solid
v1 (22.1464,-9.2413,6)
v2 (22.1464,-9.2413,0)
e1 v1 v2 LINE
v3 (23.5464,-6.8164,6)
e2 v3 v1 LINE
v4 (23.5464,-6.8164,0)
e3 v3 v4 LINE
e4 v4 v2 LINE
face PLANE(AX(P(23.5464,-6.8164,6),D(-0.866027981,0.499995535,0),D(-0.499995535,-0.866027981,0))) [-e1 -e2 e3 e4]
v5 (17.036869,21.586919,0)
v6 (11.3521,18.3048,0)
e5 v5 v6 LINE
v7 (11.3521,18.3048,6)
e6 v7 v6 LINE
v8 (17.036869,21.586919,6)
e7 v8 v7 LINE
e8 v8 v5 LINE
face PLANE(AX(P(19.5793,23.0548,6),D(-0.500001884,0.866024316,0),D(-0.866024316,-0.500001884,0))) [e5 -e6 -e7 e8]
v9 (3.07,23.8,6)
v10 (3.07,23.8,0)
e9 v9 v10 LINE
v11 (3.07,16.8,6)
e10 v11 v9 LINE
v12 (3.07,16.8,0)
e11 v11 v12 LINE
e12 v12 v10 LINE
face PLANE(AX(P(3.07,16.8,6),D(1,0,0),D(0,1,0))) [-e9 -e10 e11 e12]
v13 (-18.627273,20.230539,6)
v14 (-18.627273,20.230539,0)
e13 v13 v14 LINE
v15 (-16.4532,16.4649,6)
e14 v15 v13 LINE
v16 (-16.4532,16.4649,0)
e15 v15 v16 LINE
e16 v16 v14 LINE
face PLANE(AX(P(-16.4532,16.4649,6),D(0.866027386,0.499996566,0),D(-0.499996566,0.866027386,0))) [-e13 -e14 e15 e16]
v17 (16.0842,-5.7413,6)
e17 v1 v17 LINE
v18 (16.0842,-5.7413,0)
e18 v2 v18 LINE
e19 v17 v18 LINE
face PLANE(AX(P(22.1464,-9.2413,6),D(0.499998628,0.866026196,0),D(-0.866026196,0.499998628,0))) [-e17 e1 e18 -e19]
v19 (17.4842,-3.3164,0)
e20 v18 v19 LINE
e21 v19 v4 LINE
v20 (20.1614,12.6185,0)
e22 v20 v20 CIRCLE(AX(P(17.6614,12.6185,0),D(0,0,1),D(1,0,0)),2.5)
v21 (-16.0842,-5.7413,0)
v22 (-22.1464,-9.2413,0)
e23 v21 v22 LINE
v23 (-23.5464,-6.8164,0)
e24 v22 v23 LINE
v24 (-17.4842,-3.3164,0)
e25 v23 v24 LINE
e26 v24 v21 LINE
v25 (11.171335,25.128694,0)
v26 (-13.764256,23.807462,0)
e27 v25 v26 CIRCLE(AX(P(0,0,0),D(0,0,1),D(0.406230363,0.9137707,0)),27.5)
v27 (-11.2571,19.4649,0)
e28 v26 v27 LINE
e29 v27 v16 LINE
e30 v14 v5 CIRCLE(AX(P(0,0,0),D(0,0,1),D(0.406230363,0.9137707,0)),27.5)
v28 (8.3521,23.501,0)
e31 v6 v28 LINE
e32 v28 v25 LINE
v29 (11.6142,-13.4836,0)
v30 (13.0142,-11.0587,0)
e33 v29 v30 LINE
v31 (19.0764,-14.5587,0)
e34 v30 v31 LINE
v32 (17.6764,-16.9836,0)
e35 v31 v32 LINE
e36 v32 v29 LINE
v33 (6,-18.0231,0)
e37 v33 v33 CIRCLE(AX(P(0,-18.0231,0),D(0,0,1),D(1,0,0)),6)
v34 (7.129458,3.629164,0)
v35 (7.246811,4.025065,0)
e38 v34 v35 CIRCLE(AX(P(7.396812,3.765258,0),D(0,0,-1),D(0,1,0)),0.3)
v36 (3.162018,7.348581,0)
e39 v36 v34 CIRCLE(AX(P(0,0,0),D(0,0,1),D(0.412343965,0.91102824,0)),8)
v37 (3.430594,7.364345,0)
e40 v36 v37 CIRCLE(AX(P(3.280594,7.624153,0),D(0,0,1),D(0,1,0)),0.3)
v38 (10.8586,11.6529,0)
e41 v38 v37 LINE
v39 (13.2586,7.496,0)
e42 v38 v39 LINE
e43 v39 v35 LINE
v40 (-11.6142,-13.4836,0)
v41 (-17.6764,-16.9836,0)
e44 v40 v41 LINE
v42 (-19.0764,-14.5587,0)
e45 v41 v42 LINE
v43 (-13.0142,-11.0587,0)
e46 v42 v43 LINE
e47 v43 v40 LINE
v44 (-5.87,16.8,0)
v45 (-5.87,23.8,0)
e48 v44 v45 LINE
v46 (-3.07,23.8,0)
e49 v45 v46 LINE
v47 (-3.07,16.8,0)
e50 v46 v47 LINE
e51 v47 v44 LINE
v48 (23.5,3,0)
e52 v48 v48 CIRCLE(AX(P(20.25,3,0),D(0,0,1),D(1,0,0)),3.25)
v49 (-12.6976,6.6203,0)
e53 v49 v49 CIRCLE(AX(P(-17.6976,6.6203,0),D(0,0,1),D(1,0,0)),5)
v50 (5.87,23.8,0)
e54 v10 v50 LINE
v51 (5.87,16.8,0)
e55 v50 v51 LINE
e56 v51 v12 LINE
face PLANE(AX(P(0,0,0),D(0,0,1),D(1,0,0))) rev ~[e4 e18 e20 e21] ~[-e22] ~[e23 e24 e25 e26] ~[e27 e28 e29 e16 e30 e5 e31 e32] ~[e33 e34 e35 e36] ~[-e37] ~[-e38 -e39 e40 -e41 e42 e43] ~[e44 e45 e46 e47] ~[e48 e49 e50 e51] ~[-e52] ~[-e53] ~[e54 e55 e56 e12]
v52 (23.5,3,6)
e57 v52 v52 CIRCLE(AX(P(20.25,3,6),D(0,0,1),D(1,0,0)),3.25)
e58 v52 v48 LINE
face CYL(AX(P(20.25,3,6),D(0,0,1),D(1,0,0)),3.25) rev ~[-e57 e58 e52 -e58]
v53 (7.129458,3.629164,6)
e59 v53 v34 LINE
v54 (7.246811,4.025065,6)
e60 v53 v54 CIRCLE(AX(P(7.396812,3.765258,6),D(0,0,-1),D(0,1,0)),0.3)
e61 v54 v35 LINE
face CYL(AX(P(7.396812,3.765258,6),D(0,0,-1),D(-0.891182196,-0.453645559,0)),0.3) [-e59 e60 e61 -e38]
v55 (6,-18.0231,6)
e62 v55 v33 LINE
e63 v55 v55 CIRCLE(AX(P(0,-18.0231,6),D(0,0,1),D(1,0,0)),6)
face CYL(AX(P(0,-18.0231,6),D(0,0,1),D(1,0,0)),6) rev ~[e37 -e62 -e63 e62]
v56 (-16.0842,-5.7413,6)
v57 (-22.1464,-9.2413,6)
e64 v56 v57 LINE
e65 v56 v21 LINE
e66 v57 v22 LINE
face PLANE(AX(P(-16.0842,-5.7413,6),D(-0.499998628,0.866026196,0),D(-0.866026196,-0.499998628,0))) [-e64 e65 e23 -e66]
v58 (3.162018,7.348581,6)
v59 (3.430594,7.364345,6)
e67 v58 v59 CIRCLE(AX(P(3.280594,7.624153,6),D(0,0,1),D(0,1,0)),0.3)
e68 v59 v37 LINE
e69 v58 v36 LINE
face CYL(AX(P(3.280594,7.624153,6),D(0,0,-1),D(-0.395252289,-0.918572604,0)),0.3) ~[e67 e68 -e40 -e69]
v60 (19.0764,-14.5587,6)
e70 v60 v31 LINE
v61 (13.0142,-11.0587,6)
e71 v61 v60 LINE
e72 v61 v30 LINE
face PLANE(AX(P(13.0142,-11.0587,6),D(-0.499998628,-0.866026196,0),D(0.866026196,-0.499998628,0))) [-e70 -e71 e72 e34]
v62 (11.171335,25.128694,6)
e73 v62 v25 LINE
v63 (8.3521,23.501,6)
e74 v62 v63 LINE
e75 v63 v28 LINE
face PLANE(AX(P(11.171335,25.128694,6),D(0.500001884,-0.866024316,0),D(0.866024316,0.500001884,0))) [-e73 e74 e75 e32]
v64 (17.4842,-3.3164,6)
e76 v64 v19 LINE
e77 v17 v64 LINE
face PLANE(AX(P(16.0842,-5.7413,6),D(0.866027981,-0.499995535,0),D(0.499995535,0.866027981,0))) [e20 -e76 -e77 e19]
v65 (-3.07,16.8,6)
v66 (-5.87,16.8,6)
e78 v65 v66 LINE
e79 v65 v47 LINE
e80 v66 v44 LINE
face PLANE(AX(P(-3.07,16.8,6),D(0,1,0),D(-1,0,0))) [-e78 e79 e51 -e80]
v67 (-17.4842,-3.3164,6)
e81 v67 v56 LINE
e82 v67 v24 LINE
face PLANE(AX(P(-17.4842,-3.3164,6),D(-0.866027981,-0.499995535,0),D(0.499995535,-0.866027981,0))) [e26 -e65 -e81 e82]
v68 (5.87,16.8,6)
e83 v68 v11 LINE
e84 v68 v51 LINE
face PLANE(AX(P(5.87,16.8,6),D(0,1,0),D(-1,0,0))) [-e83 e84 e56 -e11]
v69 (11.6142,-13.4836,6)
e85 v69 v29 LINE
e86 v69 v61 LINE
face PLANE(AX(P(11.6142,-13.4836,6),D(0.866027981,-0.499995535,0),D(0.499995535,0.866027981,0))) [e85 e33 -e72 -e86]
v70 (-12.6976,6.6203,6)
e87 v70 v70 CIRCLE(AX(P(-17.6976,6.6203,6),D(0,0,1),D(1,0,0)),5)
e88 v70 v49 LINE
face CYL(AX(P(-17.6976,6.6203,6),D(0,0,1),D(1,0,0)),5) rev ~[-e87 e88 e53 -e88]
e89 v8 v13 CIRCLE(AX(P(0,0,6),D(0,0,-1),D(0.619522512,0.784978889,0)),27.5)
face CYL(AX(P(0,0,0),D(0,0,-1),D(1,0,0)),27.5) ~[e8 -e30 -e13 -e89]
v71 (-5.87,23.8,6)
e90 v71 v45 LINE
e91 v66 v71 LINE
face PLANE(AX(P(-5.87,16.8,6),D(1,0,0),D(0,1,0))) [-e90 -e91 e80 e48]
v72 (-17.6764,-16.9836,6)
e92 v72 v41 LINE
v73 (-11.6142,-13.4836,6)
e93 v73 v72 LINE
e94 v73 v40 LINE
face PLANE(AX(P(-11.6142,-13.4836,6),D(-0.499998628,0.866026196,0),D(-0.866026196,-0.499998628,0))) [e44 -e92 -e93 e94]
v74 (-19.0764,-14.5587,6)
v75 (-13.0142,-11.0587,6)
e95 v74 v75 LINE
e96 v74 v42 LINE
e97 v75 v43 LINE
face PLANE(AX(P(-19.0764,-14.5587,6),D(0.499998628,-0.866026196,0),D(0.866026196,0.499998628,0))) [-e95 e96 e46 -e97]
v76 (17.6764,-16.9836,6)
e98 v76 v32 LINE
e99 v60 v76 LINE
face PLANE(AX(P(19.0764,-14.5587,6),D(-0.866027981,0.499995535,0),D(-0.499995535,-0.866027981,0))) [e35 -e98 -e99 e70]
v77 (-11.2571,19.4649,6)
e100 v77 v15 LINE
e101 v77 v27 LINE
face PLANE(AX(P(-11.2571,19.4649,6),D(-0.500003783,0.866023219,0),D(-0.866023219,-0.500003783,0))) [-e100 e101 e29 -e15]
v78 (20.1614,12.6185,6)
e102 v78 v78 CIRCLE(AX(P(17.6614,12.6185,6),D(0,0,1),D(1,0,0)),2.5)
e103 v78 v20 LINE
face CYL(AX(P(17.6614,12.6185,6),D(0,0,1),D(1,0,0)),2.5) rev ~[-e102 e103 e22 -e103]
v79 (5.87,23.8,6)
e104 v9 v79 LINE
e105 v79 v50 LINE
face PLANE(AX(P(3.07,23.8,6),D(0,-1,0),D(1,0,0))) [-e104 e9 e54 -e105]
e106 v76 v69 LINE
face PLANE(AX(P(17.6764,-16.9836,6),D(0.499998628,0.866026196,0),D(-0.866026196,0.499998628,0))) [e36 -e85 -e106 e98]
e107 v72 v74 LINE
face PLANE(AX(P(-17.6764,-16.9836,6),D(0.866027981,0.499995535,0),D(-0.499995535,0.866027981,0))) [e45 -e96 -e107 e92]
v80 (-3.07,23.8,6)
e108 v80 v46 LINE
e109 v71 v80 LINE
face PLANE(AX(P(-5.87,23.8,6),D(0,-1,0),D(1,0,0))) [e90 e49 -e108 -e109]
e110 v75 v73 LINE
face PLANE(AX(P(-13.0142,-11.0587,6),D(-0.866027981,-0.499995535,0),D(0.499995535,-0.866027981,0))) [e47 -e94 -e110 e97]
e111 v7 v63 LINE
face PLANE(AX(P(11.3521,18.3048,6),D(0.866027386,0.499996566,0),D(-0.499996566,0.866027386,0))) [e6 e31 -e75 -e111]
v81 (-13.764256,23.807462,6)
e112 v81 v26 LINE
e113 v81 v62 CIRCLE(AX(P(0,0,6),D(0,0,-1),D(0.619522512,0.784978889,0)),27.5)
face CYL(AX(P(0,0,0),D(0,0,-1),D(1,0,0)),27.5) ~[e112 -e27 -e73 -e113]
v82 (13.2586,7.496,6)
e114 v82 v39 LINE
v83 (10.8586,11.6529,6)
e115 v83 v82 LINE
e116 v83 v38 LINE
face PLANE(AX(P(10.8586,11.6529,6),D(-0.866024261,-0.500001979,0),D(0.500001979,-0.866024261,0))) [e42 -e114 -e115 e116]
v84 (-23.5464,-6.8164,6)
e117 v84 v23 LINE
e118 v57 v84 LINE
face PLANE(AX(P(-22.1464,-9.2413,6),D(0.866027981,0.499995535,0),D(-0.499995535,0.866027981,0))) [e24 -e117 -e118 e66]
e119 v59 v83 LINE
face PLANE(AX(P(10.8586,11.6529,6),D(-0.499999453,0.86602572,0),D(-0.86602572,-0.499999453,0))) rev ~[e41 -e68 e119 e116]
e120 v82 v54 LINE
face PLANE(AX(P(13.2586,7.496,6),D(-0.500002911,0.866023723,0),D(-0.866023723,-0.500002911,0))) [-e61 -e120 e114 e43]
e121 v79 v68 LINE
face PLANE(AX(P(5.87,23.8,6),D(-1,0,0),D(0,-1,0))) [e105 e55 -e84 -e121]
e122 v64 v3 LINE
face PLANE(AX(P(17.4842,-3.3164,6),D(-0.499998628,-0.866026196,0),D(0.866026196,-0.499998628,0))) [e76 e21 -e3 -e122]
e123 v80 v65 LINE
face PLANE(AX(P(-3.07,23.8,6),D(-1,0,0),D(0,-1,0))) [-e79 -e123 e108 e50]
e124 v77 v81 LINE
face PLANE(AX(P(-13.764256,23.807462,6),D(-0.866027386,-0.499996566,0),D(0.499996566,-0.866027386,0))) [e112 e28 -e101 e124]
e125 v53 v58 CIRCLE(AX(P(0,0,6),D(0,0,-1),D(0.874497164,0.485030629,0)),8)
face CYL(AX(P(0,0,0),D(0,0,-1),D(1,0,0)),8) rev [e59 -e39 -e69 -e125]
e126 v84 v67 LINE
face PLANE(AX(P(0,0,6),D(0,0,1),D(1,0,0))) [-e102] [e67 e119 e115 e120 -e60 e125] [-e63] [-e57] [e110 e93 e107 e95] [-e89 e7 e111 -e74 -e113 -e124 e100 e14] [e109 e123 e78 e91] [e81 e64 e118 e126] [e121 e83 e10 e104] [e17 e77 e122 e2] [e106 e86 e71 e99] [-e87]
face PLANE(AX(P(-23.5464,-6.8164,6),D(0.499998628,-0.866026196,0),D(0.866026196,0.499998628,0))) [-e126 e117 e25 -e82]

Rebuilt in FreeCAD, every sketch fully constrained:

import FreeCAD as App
import Part
import Sketcher
Q = App.Units.Quantity


def edges_at(feature, points):
    """Names of the edges that pass closest to the given points."""
    edges = feature.Shape.Edges
    near = lambda p: min(range(len(edges)), key=lambda i: edges[i].distToShape(Part.Vertex(*p))[0])
    return sorted({f"Edge{near(p) + 1}" for p in points})


def add_polygon(sketch, points):
    """Adds a closed chain of lines whose ends are joined by coincident constraints."""
    first, n = sketch.GeometryCount, len(points)
    for a, b in zip(points, points[1:] + points[:1]):
        sketch.addGeometry(Part.LineSegment(App.Vector(*a, 0), App.Vector(*b, 0)), False)
    for i in range(n):
        sketch.addConstraint(Sketcher.Constraint("Coincident", first + i, 2, first + (i + 1) % n, 1))

doc = App.newDocument("Part")
body = doc.addObject("PartDesign::Body", "Body")

# Sketch on XY plane
sketch1 = body.newObject("Sketcher::SketchObject", "Sketch")
sketch1.AttachmentSupport = (doc.getObject("XY_Plane"), [""])
sketch1.MapMode = "FlatFace"
sketch1.addGeometry([
    Part.Circle(App.Vector(0, 0, 0), App.Vector(0, 0, 1), 28),
    Part.Circle(App.Vector(0, 0, 0), App.Vector(0, 0, 1), 8),
], False)
sketch1.addConstraint([
    Sketcher.Constraint("Coincident", 0, 3, -1, 1),
    Sketcher.Constraint("Coincident", 1, 3, -1, 1),
    Sketcher.Constraint("Diameter", 0, 55.0),
    Sketcher.Constraint("Diameter", 1, 16.0),
])
pad1 = body.newObject("PartDesign::Pad", "Pad")
pad1.Profile = sketch1
pad1.Length = 6

# Sketch on XY plane
sketch2 = body.newObject("Sketcher::SketchObject", "Sketch001")
sketch2.AttachmentSupport = (doc.getObject("XY_Plane"), [""])
sketch2.MapMode = "FlatFace"
sketch2.AttachmentOffset = App.Placement(App.Vector(0, 0, 6), App.Rotation())
add_polygon(sketch2, [(-3.1, 23.8), (-5.9, 23.8), (-5.9, 16.8), (-3.1, 16.8)])  # lines 0-3
add_polygon(sketch2, [(5.9, 23.8), (3.1, 23.8), (3.1, 16.8), (5.9, 16.8)])  # lines 4-7
add_polygon(sketch2, [(-19.1, -14.6), (-17.7, -17), (-11.6, -13.5), (-13, -11.1)])  # lines 8-11
add_polygon(sketch2, [(-23.5, -6.8), (-22.1, -9.2), (-16.1, -5.7), (-17.5, -3.3)])  # lines 12-15
add_polygon(sketch2, [(22.1, -9.2), (23.5, -6.8), (17.5, -3.3), (16.1, -5.7)])  # lines 16-19
add_polygon(sketch2, [(17.7, -17), (19.1, -14.6), (13, -11.1), (11.6, -13.5)])  # lines 20-23
sketch2.addConstraint([
    Sketcher.Constraint("Horizontal", 0),
    Sketcher.Constraint("Vertical", 1),
    Sketcher.Constraint("Horizontal", 2),
    Sketcher.Constraint("Vertical", 3),
    Sketcher.Constraint("Horizontal", 4),
    Sketcher.Constraint("Vertical", 5),
    Sketcher.Constraint("Horizontal", 6),
    Sketcher.Constraint("Vertical", 7),
    Sketcher.Constraint("Symmetric", 3, 2, 4, 2, -2),
    Sketcher.Constraint("Symmetric", 1, 2, 6, 2, -2),
    Sketcher.Constraint("Symmetric", 15, 2, 16, 2, -2),
    Sketcher.Constraint("Symmetric", 14, 2, 17, 2, -2),
    Sketcher.Constraint("Symmetric", 13, 2, 18, 2, -2),
    Sketcher.Constraint("Symmetric", 12, 2, 19, 2, -2),
    Sketcher.Constraint("Symmetric", 11, 2, 20, 2, -2),
    Sketcher.Constraint("Symmetric", 10, 2, 21, 2, -2),
    Sketcher.Constraint("Symmetric", 9, 2, 22, 2, -2),
    Sketcher.Constraint("Symmetric", 8, 2, 23, 2, -2),
    Sketcher.Constraint("Perpendicular", 8, 9),
    Sketcher.Constraint("Perpendicular", 9, 10),
    Sketcher.Constraint("Perpendicular", 10, 11),
    Sketcher.Constraint("Perpendicular", 11, 12),
    Sketcher.Constraint("Perpendicular", 12, 13),
    Sketcher.Constraint("Perpendicular", 13, 14),
    Sketcher.Constraint("Perpendicular", 14, 15),
    Sketcher.Constraint("Equal", 10, 12),
    Sketcher.Constraint("Equal", 11, 13),
    Sketcher.Constraint("DistanceY", 1, 2, 1, 1, 7.0),
    Sketcher.Constraint("Distance", 9, 7.0),
    Sketcher.Constraint("DistanceX", 0, 2, 0, 1, 2.8),
    Sketcher.Constraint("Distance", 8, 2.8),
    Sketcher.Constraint("DistanceX", 2, 2, -1, 1, 3.07),
    Sketcher.Constraint("Angle", 8, Q("-60.0003 deg")),
    Sketcher.Constraint("DistanceX", 12, 2, 11, 2, 3.07),
    Sketcher.Constraint("DistanceY", -1, 1, 0, 2, 23.8),
    Sketcher.Constraint("DistanceX", 8, 2, -1, 1, 17.6764),
    Sketcher.Constraint("DistanceY", 8, 2, -1, 1, 16.9836),
    Sketcher.Constraint("DistanceY", 12, 2, -1, 1, 9.2413),
])
pocket1 = body.newObject("PartDesign::Pocket", "Pocket")
pocket1.Profile = sketch2
pocket1.Length = 6

# Sketch on XY plane
sketch3 = body.newObject("Sketcher::SketchObject", "Sketch002")
sketch3.AttachmentSupport = (doc.getObject("XY_Plane"), [""])
sketch3.MapMode = "FlatFace"
sketch3.AttachmentOffset = App.Placement(App.Vector(0, 0, 6), App.Rotation())
add_polygon(sketch3, [(20, 23), (17, 28), (8, 24), (11, 18)])  # lines 0-3
sketch3.addConstraint([
    Sketcher.Constraint("Perpendicular", 0, 1),
    Sketcher.Constraint("Perpendicular", 1, 2),
    Sketcher.Constraint("Perpendicular", 2, 3),
    Sketcher.Constraint("Distance", 0, 6.0),
    Sketcher.Constraint("Distance", 1, 9.5),
    Sketcher.Constraint("Angle", 0, Q("119.9998 deg")),
    Sketcher.Constraint("DistanceY", -1, 1, 0, 2, 28.251),
    Sketcher.Constraint("DistanceX", -1, 1, 1, 2, 8.352),
])
pocket2 = body.newObject("PartDesign::Pocket", "Pocket001")
pocket2.Profile = sketch3
pocket2.Length = 10

# Sketch on XY plane
sketch4 = body.newObject("Sketcher::SketchObject", "Sketch003")
sketch4.AttachmentSupport = (doc.getObject("XY_Plane"), [""])
sketch4.MapMode = "FlatFace"
sketch4.AttachmentOffset = App.Placement(App.Vector(0, 0, 6), App.Rotation())
add_polygon(sketch4, [(-16.5, 16.5), (-11.3, 19.5), (-14.3, 24.7), (-19.5, 21.7)])  # lines 0-3
add_polygon(sketch4, [(13.3, 7.5), (10.9, 11.7), (-2.1, 4.2), (0.9, 0.4)])  # lines 4-7
sketch4.addConstraint([
    Sketcher.Constraint("Perpendicular", 0, 1),
    Sketcher.Constraint("Perpendicular", 1, 2),
    Sketcher.Constraint("Perpendicular", 2, 3),
    Sketcher.Constraint("Parallel", 3, 4),
    Sketcher.Constraint("Perpendicular", 4, 5),
    Sketcher.Constraint("Parallel", 5, 7),
    Sketcher.Constraint("Equal", 0, 1),
    Sketcher.Constraint("Distance", 0, 6.0),
    Sketcher.Constraint("Distance", 5, 15.0),
    Sketcher.Constraint("Distance", 4, 4.8),
    Sketcher.Constraint("Angle", 0, Q("30.0003 deg")),
    Sketcher.Constraint("Distance", 7, 14.2183),
    Sketcher.Constraint("DistanceX", 0, 2, -1, 1, 11.257),
    Sketcher.Constraint("DistanceY", -1, 1, 0, 2, 19.465),
    Sketcher.Constraint("DistanceY", -1, 1, 4, 2, 11.653),
    Sketcher.Constraint("DistanceX", -1, 1, 4, 2, 10.8586),
])
pocket3 = body.newObject("PartDesign::Pocket", "Pocket002")
pocket3.Profile = sketch4
pocket3.Length = 10
doc.recompute()

fillet = body.newObject("PartDesign::Fillet", "Fillet")
fillet.Base = (pocket3, edges_at(pocket3, [(3.299, 7.288, 3), (6.996, 3.88, 3)]))
fillet.Radius = 0.3

# Sketch on XY plane
sketch5 = body.newObject("Sketcher::SketchObject", "Sketch004")
sketch5.AttachmentSupport = (doc.getObject("XY_Plane"), [""])
sketch5.MapMode = "FlatFace"
sketch5.AttachmentOffset = App.Placement(App.Vector(0, 0, 6), App.Rotation())
sketch5.addGeometry([
    Part.Circle(App.Vector(0, -18, 0), App.Vector(0, 0, 1), 6),
    Part.Circle(App.Vector(-17.7, 6.6, 0), App.Vector(0, 0, 1), 5),
    Part.Circle(App.Vector(20.2, 3, 0), App.Vector(0, 0, 1), 3.2),
    Part.Circle(App.Vector(17.7, 12.6, 0), App.Vector(0, 0, 1), 2.5),
], False)
sketch5.addConstraint([
    Sketcher.Constraint("PointOnObject", 0, 3, -2),
    Sketcher.Constraint("Diameter", 0, 12.0),
    Sketcher.Constraint("Diameter", 1, 10.0),
    Sketcher.Constraint("Diameter", 3, 5.0),
    Sketcher.Constraint("Diameter", 2, 6.5),
    Sketcher.Constraint("DistanceY", -1, 1, 2, 3, 3.0),
    Sketcher.Constraint("DistanceX", -1, 1, 2, 3, 20.25),
    Sketcher.Constraint("DistanceY", 0, 3, -1, 1, 18.023),
    Sketcher.Constraint("DistanceX", 1, 3, 3, 3, 35.359),
    Sketcher.Constraint("DistanceX", 1, 3, -1, 1, 17.6976),
    Sketcher.Constraint("DistanceY", -1, 1, 1, 3, 6.6203),
    Sketcher.Constraint("DistanceY", -1, 1, 3, 3, 12.6185),
])
pocket4 = body.newObject("PartDesign::Pocket", "Pocket003")
pocket4.Profile = sketch5
pocket4.Length = 10

doc.recompute()
